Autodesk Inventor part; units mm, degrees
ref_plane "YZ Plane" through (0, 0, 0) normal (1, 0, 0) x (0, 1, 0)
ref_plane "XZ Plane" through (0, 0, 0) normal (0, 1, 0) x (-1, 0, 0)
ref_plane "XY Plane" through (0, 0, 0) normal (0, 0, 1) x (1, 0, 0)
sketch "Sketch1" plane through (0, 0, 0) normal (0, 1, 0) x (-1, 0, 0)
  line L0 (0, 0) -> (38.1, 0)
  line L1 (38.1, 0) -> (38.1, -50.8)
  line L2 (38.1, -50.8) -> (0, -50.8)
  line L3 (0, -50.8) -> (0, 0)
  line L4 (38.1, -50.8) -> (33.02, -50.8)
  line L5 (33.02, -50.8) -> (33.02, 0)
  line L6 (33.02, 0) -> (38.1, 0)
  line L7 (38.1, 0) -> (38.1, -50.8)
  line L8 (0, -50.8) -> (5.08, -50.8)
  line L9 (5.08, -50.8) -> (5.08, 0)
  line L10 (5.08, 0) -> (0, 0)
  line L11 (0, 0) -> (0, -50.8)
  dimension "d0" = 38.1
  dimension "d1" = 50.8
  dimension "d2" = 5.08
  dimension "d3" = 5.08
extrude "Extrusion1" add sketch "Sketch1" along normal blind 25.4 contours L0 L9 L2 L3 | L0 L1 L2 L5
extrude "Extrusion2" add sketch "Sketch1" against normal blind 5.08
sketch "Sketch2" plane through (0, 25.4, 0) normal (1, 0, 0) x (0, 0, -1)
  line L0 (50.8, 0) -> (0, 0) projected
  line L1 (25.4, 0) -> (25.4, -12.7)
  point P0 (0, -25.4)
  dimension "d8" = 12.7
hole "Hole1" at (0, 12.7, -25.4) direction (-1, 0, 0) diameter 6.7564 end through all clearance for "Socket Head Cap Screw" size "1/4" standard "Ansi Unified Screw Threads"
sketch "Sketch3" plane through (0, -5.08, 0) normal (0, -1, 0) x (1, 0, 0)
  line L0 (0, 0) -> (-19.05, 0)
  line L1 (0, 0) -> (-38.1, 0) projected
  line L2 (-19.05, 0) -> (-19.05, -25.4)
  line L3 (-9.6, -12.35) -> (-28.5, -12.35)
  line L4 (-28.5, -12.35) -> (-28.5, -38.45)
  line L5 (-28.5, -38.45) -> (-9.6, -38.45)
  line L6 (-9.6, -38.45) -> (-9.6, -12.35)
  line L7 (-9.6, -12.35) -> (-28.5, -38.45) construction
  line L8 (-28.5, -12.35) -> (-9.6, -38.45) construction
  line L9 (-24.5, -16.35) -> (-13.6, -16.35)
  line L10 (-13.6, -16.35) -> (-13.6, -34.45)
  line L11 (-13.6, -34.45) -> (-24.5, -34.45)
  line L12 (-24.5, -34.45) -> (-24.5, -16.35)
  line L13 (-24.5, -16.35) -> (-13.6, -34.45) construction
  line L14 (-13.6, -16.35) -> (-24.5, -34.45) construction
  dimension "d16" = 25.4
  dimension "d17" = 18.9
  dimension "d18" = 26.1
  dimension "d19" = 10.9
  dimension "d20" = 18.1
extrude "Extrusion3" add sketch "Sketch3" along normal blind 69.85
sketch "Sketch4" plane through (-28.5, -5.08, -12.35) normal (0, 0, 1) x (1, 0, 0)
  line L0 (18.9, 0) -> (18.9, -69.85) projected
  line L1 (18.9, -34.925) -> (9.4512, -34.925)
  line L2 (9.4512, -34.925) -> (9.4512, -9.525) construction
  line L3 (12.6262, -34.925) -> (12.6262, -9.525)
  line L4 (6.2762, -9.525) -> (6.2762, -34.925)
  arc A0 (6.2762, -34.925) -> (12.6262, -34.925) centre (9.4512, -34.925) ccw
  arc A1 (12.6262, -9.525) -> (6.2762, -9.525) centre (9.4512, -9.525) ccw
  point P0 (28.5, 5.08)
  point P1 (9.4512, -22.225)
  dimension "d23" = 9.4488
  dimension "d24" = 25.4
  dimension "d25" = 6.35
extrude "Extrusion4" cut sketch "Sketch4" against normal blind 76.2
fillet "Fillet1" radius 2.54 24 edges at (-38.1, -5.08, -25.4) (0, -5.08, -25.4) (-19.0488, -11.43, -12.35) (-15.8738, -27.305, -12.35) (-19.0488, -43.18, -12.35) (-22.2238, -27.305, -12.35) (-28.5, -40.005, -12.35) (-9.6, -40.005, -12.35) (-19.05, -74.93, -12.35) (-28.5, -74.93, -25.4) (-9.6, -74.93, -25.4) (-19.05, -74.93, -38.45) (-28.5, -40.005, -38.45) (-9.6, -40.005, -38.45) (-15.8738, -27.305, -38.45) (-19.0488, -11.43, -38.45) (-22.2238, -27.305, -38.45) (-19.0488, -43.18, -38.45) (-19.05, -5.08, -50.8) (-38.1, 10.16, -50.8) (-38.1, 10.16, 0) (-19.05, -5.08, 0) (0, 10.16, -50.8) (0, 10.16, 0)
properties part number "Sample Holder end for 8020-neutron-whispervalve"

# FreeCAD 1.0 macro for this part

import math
import FreeCAD as App
import Part
import Sketcher

V = App.Vector
Q = App.Units.Quantity


def edges_at(feature, points):
    """Names of the edges that pass closest to the given points."""
    edges = feature.Shape.Edges
    near = lambda p: min(range(len(edges)), key=lambda i: edges[i].distToShape(Part.Vertex(*p))[0])
    return sorted({f"Edge{near(p) + 1}" for p in points})

doc = App.newDocument("Part")
body = doc.addObject("PartDesign::Body", "Body")
body.AllowCompound = True

# Sketch on XZ plane
sketch1 = body.newObject("Sketcher::SketchObject", "Sketch")
sketch1.AttachmentSupport = (doc.getObject("XZ_Plane"), [""])
sketch1.MapMode = "FlatFace"
sketch1.addGeometry(Part.LineSegment(V(-5.08, 0, 0), V(0, 0, 0)), False)
sketch1.addGeometry(Part.LineSegment(V(0, 0, 0), V(0, -50.8, 0)), False)
sketch1.addGeometry(Part.LineSegment(V(0, -50.8, 0), V(-5.08, -50.8, 0)), False)
sketch1.addGeometry(Part.LineSegment(V(-5.08, -50.8, 0), V(-5.08, 0, 0)), False)
sketch1.addGeometry(Part.LineSegment(V(-38.1, 0, 0), V(-33.02, 0, 0)), False)
sketch1.addGeometry(Part.LineSegment(V(-33.02, 0, 0), V(-33.02, -50.8, 0)), False)
sketch1.addGeometry(Part.LineSegment(V(-33.02, -50.8, 0), V(-38.1, -50.8, 0)), False)
sketch1.addGeometry(Part.LineSegment(V(-38.1, -50.8, 0), V(-38.1, 0, 0)), False)
sketch1.addConstraint(Sketcher.Constraint("Coincident", 0, 2, 1, 1))
sketch1.addConstraint(Sketcher.Constraint("Coincident", 1, 2, 2, 1))
sketch1.addConstraint(Sketcher.Constraint("Coincident", 2, 2, 3, 1))
sketch1.addConstraint(Sketcher.Constraint("Coincident", 3, 2, 0, 1))
sketch1.addConstraint(Sketcher.Constraint("Coincident", 4, 2, 5, 1))
sketch1.addConstraint(Sketcher.Constraint("Coincident", 5, 2, 6, 1))
sketch1.addConstraint(Sketcher.Constraint("Coincident", 6, 2, 7, 1))
sketch1.addConstraint(Sketcher.Constraint("Coincident", 7, 2, 4, 1))
sketch1.addConstraint(Sketcher.Constraint("Horizontal", 0))
sketch1.addConstraint(Sketcher.Constraint("Vertical", 1))
sketch1.addConstraint(Sketcher.Constraint("Horizontal", 2))
sketch1.addConstraint(Sketcher.Constraint("Vertical", 3))
sketch1.addConstraint(Sketcher.Constraint("Horizontal", 4))
sketch1.addConstraint(Sketcher.Constraint("Vertical", 5))
sketch1.addConstraint(Sketcher.Constraint("Horizontal", 6))
sketch1.addConstraint(Sketcher.Constraint("Vertical", 7))
sketch1.addConstraint(Sketcher.Constraint("Coincident", 0, 2, -1, 1))
sketch1.addConstraint(Sketcher.Constraint("PointOnObject", 4, 2, -1))
sketch1.addConstraint(Sketcher.Constraint("Horizontal", 2, 2, 5, 2))
sketch1.addConstraint(Sketcher.Constraint("Equal", 2, 4))
sketch1.addConstraint(Sketcher.Constraint("DistanceY", 1, 2, 1, 1, Q("2 in")))
sketch1.addConstraint(Sketcher.Constraint("DistanceX", 0, 1, 0, 2, Q("0.2 in")))
sketch1.addConstraint(Sketcher.Constraint("DistanceX", 6, 2, -1, 1, Q("1.5 in")))
pad1 = body.newObject("PartDesign::Pad", "Pad")
pad1.Profile = sketch1
pad1.Length = Q("1 in")
pad1.Reversed = True

# Sketch on XZ plane
sketch2 = body.newObject("Sketcher::SketchObject", "Sketch001")
sketch2.AttachmentSupport = (doc.getObject("XZ_Plane"), [""])
sketch2.MapMode = "FlatFace"
sketch2.addGeometry(Part.LineSegment(V(0, 0, 0), V(0, -50.8, 0)), False)
sketch2.addGeometry(Part.LineSegment(V(0, -50.8, 0), V(-38.1, -50.8, 0)), False)
sketch2.addGeometry(Part.LineSegment(V(-38.1, -50.8, 0), V(-38.1, 0, 0)), False)
sketch2.addGeometry(Part.LineSegment(V(-38.1, 0, 0), V(0, 0, 0)), False)
sketch2.addConstraint(Sketcher.Constraint("Coincident", 0, 2, 1, 1))
sketch2.addConstraint(Sketcher.Constraint("Coincident", 1, 2, 2, 1))
sketch2.addConstraint(Sketcher.Constraint("Coincident", 2, 2, 3, 1))
sketch2.addConstraint(Sketcher.Constraint("Coincident", 3, 2, 0, 1))
sketch2.addConstraint(Sketcher.Constraint("Vertical", 0))
sketch2.addConstraint(Sketcher.Constraint("Horizontal", 1))
sketch2.addConstraint(Sketcher.Constraint("Vertical", 2))
sketch2.addConstraint(Sketcher.Constraint("Horizontal", 3))
sketch2.addConstraint(Sketcher.Constraint("Coincident", 3, 2, -1, 1))
sketch2.addConstraint(Sketcher.Constraint("DistanceY", 0, 2, 0, 1, Q("2 in")))
sketch2.addConstraint(Sketcher.Constraint("DistanceX", 1, 2, 1, 1, Q("1.5 in")))
pad2 = body.newObject("PartDesign::Pad", "Pad001")
pad2.Profile = sketch2
pad2.Length = Q("0.2 in")

# Sketch on YZ plane
sketch3 = body.newObject("Sketcher::SketchObject", "Sketch002")
sketch3.AttachmentSupport = (doc.getObject("YZ_Plane"), [""])
sketch3.MapMode = "FlatFace"
sketch3.addGeometry(Part.Circle(V(12.7, -25.4, 0), V(0, 0, 1), 3.3782), False)
sketch3.addConstraint(Sketcher.Constraint("Diameter", 0, Q("0.266 in")))
sketch3.addConstraint(Sketcher.Constraint("DistanceY", 0, 3, -1, 1, Q("1 in")))
sketch3.addConstraint(Sketcher.Constraint("DistanceX", -1, 1, 0, 3, Q("0.5 in")))
doc.recompute()
hole = body.newObject("PartDesign::Hole", "Hole")
hole.Profile = sketch3
hole.ThreadType = "None"
hole.Diameter = Q("0.266 in")
hole.DepthType = "ThroughAll"

# Sketch on XZ plane
sketch4 = body.newObject("Sketcher::SketchObject", "Sketch003")
sketch4.AttachmentSupport = (doc.getObject("XZ_Plane"), [""])
sketch4.MapMode = "FlatFace"
sketch4.AttachmentOffset = App.Placement(V(0, 0, 0.2 * 25.4), App.Rotation())
sketch4.addGeometry(Part.LineSegment(V(-9.6, -12.35, 0), V(-19.05, -12.35, 0)), False)
sketch4.addGeometry(Part.LineSegment(V(-19.05, -12.35, 0), V(-28.5, -12.35, 0)), False)
sketch4.addGeometry(Part.LineSegment(V(-28.5, -12.35, 0), V(-28.5, -38.45, 0)), False)
sketch4.addGeometry(Part.LineSegment(V(-28.5, -38.45, 0), V(-9.6, -38.45, 0)), False)
sketch4.addGeometry(Part.LineSegment(V(-9.6, -38.45, 0), V(-9.6, -12.35, 0)), False)
sketch4.addGeometry(Part.LineSegment(V(-24.5, -16.35, 0), V(-19.05, -16.35, 0)), False)
sketch4.addGeometry(Part.LineSegment(V(-19.05, -16.35, 0), V(-13.6, -16.35, 0)), False)
sketch4.addGeometry(Part.LineSegment(V(-13.6, -16.35, 0), V(-13.6, -34.45, 0)), False)
sketch4.addGeometry(Part.LineSegment(V(-13.6, -34.45, 0), V(-24.5, -34.45, 0)), False)
sketch4.addGeometry(Part.LineSegment(V(-24.5, -34.45, 0), V(-24.5, -16.35, 0)), False)
sketch4.addConstraint(Sketcher.Constraint("Coincident", 0, 2, 1, 1))
sketch4.addConstraint(Sketcher.Constraint("Coincident", 1, 2, 2, 1))
sketch4.addConstraint(Sketcher.Constraint("Coincident", 2, 2, 3, 1))
sketch4.addConstraint(Sketcher.Constraint("Coincident", 3, 2, 4, 1))
sketch4.addConstraint(Sketcher.Constraint("Coincident", 4, 2, 0, 1))
sketch4.addConstraint(Sketcher.Constraint("Coincident", 5, 2, 6, 1))
sketch4.addConstraint(Sketcher.Constraint("Coincident", 6, 2, 7, 1))
sketch4.addConstraint(Sketcher.Constraint("Coincident", 7, 2, 8, 1))
sketch4.addConstraint(Sketcher.Constraint("Coincident", 8, 2, 9, 1))
sketch4.addConstraint(Sketcher.Constraint("Coincident", 9, 2, 5, 1))
sketch4.addConstraint(Sketcher.Constraint("Horizontal", 0))
sketch4.addConstraint(Sketcher.Constraint("Horizontal", 1))
sketch4.addConstraint(Sketcher.Constraint("Vertical", 2))
sketch4.addConstraint(Sketcher.Constraint("Horizontal", 3))
sketch4.addConstraint(Sketcher.Constraint("Vertical", 4))
sketch4.addConstraint(Sketcher.Constraint("Horizontal", 5))
sketch4.addConstraint(Sketcher.Constraint("Horizontal", 6))
sketch4.addConstraint(Sketcher.Constraint("Vertical", 7))
sketch4.addConstraint(Sketcher.Constraint("Horizontal", 8))
sketch4.addConstraint(Sketcher.Constraint("Vertical", 9))
sketch4.addConstraint(Sketcher.Constraint("Vertical", 0, 2, 5, 2))
sketch4.addConstraint(Sketcher.Constraint("Equal", 0, 1))
sketch4.addConstraint(Sketcher.Constraint("Equal", 5, 6))
sketch4.addConstraint(Sketcher.Constraint("DistanceX", 3, 1, 3, 2, Q("0.7441 in")))
sketch4.addConstraint(Sketcher.Constraint("DistanceY", 7, 2, 7, 1, Q("0.7126 in")))
sketch4.addConstraint(Sketcher.Constraint("DistanceX", 8, 2, 8, 1, 10.9))
sketch4.addConstraint(Sketcher.Constraint("DistanceY", 2, 2, 2, 1, 26.1))
sketch4.addConstraint(Sketcher.Constraint("DistanceX", 0, 2, -1, 1, Q("0.75 in")))
sketch4.addConstraint(Sketcher.Constraint("DistanceY", 5, 2, -1, 1, Q("0.6437 in")))
sketch4.addConstraint(Sketcher.Constraint("DistanceY", 0, 2, -1, 1, 12.35))
pad3 = body.newObject("PartDesign::Pad", "Pad002")
pad3.Profile = sketch4
pad3.Length = Q("2.75 in")

# Sketch on XY plane
sketch5 = body.newObject("Sketcher::SketchObject", "Sketch004")
sketch5.AttachmentSupport = (doc.getObject("XY_Plane"), [""])
sketch5.MapMode = "FlatFace"
sketch5.AttachmentOffset = App.Placement(V(0, 0, -12.35), App.Rotation())
sketch5.addGeometry(Part.ArcOfCircle(Part.Circle(V(-19.0488, -40.005, 0), V(0, 0, 1), 3.175), math.radians(180), math.radians(360)), False)
sketch5.addGeometry(Part.LineSegment(V(-15.8738, -40.005, 0), V(-15.8738, -14.605, 0)), False)
sketch5.addGeometry(Part.ArcOfCircle(Part.Circle(V(-19.0488, -14.605, 0), V(0, 0, 1), 3.175), math.radians(0), math.radians(180)), False)
sketch5.addGeometry(Part.LineSegment(V(-22.2238, -14.605, 0), V(-22.2238, -40.005, 0)), False)
sketch5.addConstraint(Sketcher.Constraint("Tangent", 0, 2, 1, 1))
sketch5.addConstraint(Sketcher.Constraint("Tangent", 1, 2, 2, 1))
sketch5.addConstraint(Sketcher.Constraint("Tangent", 2, 2, 3, 1))
sketch5.addConstraint(Sketcher.Constraint("Tangent", 3, 2, 0, 1))
sketch5.addConstraint(Sketcher.Constraint("Vertical", 1))
sketch5.addConstraint(Sketcher.Constraint("Vertical", 3))
sketch5.addConstraint(Sketcher.Constraint("DistanceY", 1, 1, 1, 2, Q("1 in")))
sketch5.addConstraint(Sketcher.Constraint("Radius", 0, Q("0.125 in")))
sketch5.addConstraint(Sketcher.Constraint("DistanceY", 0, 3, -1, 1, Q("1.575 in")))
sketch5.addConstraint(Sketcher.Constraint("DistanceX", 0, 3, -1, 1, 19.0488))
pocket1 = body.newObject("PartDesign::Pocket", "Pocket")
pocket1.Profile = sketch5
pocket1.Length = Q("3 in")
doc.recompute()

fillet = body.newObject("PartDesign::Fillet", "Fillet")
fillet.Base = (pocket1, edges_at(pocket1, [
    (-38.1, -5.08, -25.4),
    (0, -5.08, -25.4),
    (-19.049, -11.43, -12.35),
    (-15.874, -27.305, -12.35),
    (-19.049, -43.18, -12.35),
    (-22.224, -27.305, -12.35),
    (-28.5, -40.005, -12.35),
    (-9.6, -40.005, -12.35),
    (-19.05, -74.93, -12.35),
    (-28.5, -74.93, -25.4),
    (-9.6, -74.93, -25.4),
    (-19.05, -74.93, -38.45),
    (-28.5, -40.005, -38.45),
    (-9.6, -40.005, -38.45),
    (-15.874, -27.305, -38.45),
    (-19.049, -11.43, -38.45),
    (-22.224, -27.305, -38.45),
    (-19.049, -43.18, -38.45),
    (-19.05, -5.08, -50.8),
    (-38.1, 10.16, -50.8),
    (-38.1, 10.16, 0),
    (-19.05, -5.08, 0),
    (0, 10.16, -50.8),
    (0, 10.16, 0),
]))
fillet.Radius = Q("0.1 in")

doc.recompute()
